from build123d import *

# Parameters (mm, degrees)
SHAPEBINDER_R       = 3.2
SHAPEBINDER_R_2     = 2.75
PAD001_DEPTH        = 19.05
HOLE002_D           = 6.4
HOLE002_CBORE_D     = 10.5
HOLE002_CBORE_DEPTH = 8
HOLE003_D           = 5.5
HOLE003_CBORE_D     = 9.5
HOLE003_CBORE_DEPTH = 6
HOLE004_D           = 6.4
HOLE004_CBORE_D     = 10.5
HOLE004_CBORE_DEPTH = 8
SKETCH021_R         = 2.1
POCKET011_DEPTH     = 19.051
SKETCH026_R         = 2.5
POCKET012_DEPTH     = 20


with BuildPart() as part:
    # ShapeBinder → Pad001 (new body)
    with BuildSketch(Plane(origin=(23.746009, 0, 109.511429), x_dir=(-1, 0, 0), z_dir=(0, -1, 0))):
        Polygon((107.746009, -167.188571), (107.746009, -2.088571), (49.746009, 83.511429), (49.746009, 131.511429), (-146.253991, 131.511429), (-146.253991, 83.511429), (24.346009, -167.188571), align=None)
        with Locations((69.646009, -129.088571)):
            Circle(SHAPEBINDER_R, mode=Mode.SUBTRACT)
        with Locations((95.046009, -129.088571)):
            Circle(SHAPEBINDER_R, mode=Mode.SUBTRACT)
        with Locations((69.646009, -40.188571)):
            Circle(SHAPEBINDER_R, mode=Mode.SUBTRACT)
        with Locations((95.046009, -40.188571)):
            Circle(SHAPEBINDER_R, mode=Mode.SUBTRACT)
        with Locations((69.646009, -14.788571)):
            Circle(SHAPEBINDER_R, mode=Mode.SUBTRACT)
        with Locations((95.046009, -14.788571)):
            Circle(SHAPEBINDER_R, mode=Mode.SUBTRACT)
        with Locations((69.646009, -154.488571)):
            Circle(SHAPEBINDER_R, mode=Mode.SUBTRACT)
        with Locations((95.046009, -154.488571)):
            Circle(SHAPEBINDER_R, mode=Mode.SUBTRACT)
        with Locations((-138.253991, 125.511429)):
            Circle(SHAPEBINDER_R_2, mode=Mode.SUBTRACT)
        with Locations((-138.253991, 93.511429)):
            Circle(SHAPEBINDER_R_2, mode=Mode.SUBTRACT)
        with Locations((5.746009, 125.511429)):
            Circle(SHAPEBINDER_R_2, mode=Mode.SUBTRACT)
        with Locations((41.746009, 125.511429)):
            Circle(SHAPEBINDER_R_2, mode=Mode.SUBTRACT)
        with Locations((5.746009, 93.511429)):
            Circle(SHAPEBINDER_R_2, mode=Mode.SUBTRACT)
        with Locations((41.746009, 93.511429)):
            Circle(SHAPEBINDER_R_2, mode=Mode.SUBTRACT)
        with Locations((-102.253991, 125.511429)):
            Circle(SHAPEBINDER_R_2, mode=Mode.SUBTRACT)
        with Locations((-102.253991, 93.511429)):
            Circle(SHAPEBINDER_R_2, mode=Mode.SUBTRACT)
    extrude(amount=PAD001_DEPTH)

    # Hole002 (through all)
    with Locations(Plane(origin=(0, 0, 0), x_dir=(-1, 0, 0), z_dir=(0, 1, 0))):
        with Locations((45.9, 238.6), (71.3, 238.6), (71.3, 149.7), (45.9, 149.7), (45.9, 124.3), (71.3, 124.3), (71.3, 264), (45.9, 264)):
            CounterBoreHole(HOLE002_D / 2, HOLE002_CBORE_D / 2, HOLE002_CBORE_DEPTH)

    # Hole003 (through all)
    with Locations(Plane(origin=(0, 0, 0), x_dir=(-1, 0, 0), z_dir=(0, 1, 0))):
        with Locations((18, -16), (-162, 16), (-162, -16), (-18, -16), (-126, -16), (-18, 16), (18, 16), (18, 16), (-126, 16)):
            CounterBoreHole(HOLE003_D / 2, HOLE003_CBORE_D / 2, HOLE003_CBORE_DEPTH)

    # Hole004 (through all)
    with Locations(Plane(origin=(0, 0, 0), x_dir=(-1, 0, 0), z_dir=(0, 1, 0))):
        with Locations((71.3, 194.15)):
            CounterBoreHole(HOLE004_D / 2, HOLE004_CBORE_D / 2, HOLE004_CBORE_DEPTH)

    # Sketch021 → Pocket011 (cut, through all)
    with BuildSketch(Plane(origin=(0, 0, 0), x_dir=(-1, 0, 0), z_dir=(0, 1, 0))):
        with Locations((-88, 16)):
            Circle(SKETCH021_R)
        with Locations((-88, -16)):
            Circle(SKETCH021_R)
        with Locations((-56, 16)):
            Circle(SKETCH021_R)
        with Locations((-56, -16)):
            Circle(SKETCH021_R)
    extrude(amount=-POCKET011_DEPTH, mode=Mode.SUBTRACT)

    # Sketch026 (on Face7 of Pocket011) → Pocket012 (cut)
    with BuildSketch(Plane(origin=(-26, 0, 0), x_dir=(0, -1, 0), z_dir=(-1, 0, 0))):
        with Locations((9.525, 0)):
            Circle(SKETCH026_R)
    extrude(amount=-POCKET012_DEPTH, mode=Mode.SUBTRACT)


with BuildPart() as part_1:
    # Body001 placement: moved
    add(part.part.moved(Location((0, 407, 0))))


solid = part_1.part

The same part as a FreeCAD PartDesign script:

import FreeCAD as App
import Part
import Sketcher

doc = App.newDocument("Part")
body = doc.addObject("PartDesign::Body", "Body")

sketch1 = body.newObject("Sketcher::SketchObject", "Sketch")
sketch1.AttachmentSupport = (doc.getObject("XZ_Plane"), [""])
sketch1.MapMode = "FlatFace"
sketch1.addGeometry([
    Part.LineSegment(App.Vector(-84, 276.7, 0), App.Vector(-84, 111.6, 0)),
    Part.LineSegment(App.Vector(-84, 111.6, 0), App.Vector(-26, 26, 0)),
    Part.LineSegment(App.Vector(-26, 26, 0), App.Vector(-26, -22, 0)),
    Part.LineSegment(App.Vector(-26, -22, 0), App.Vector(170, -22, 0)),
    Part.LineSegment(App.Vector(170, -22, 0), App.Vector(170, 26, 0)),
    Part.LineSegment(App.Vector(170, 26, 0), App.Vector(-0.6, 276.7, 0)),
    Part.LineSegment(App.Vector(-0.6, 276.7, 0), App.Vector(-84, 276.7, 0)),
    Part.Circle(App.Vector(-45.9, 264, 0), App.Vector(0, 0, 1), 3.2),
    Part.Circle(App.Vector(-71.3, 264, 0), App.Vector(0, 0, 1), 3.2),
    Part.Circle(App.Vector(-45.9, 238.6, 0), App.Vector(0, 0, 1), 3.2),
    Part.Circle(App.Vector(-71.3, 238.6, 0), App.Vector(0, 0, 1), 3.2),
    Part.Circle(App.Vector(-45.9, 149.7, 0), App.Vector(0, 0, 1), 3.2),
    Part.Circle(App.Vector(-71.3, 149.7, 0), App.Vector(0, 0, 1), 3.2),
    Part.Circle(App.Vector(-45.9, 124.3, 0), App.Vector(0, 0, 1), 3.2),
    Part.Circle(App.Vector(-71.3, 124.3, 0), App.Vector(0, 0, 1), 3.2),
    Part.Circle(App.Vector(162, 16, 0), App.Vector(0, 0, 1), 2.75),
    Part.Circle(App.Vector(162, -16, 0), App.Vector(0, 0, 1), 2.75),
    Part.Circle(App.Vector(126, 16, 0), App.Vector(0, 0, 1), 2.75),
    Part.Circle(App.Vector(126, -16, 0), App.Vector(0, 0, 1), 2.75),
    Part.Circle(App.Vector(18, 16, 0), App.Vector(0, 0, 1), 2.75),
    Part.Circle(App.Vector(18, -16, 0), App.Vector(0, 0, 1), 2.75),
    Part.Circle(App.Vector(-18, 16, 0), App.Vector(0, 0, 1), 2.75),
    Part.Circle(App.Vector(-18, -16, 0), App.Vector(0, 0, 1), 2.75),
], False)
sketch1.addConstraint([
    Sketcher.Constraint("Coincident", 0, 2, 1, 1),
    Sketcher.Constraint("Coincident", 1, 2, 2, 1),
    Sketcher.Constraint("Coincident", 2, 2, 3, 1),
    Sketcher.Constraint("Coincident", 3, 2, 4, 1),
    Sketcher.Constraint("Coincident", 4, 2, 5, 1),
    Sketcher.Constraint("Coincident", 5, 2, 6, 1),
    Sketcher.Constraint("Coincident", 6, 2, 0, 1),
    Sketcher.Constraint("Vertical", 0),
    Sketcher.Constraint("Vertical", 2),
    Sketcher.Constraint("Horizontal", 3),
    Sketcher.Constraint("Vertical", 4),
    Sketcher.Constraint("Horizontal", 6),
    Sketcher.Constraint("Equal", 7, 8),
    Sketcher.Constraint("Equal", 8, 9),
    Sketcher.Constraint("Equal", 9, 10),
    Sketcher.Constraint("Equal", 10, 11),
    Sketcher.Constraint("Equal", 11, 12),
    Sketcher.Constraint("Equal", 12, 13),
    Sketcher.Constraint("Equal", 13, 14),
    Sketcher.Constraint("Equal", 15, 16),
    Sketcher.Constraint("Equal", 16, 17),
    Sketcher.Constraint("Equal", 17, 18),
    Sketcher.Constraint("Equal", 18, 19),
    Sketcher.Constraint("Equal", 19, 20),
    Sketcher.Constraint("Equal", 20, 21),
    Sketcher.Constraint("Equal", 21, 22),
    Sketcher.Constraint("Symmetric", 20, 3, 21, 3, -1, 1),
    Sketcher.Constraint("Symmetric", 19, 3, 22, 3, -1, 1),
    Sketcher.Constraint("Symmetric", 19, 3, 21, 3, -2),
    Sketcher.Constraint("Symmetric", 15, 3, 16, 3, -1),
    Sketcher.Constraint("Symmetric", 17, 3, 18, 3, -1),
    Sketcher.Constraint("Horizontal", 7, 3, 8, 3),
    Sketcher.Constraint("Horizontal", 9, 3, 10, 3),
    Sketcher.Constraint("Horizontal", 11, 3, 12, 3),
    Sketcher.Constraint("Horizontal", 13, 3, 14, 3),
    Sketcher.Constraint("Horizontal", 15, 3, 17, 3),
    Sketcher.Constraint("Horizontal", 17, 3, 19, 3),
    Sketcher.Constraint("Horizontal", 1, 2, 4, 2),
    Sketcher.Constraint("Vertical", 7, 3, 9, 3),
    Sketcher.Constraint("Vertical", 8, 3, 10, 3),
    Sketcher.Constraint("Vertical", 9, 3, 11, 3),
    Sketcher.Constraint("Vertical", 10, 3, 12, 3),
    Sketcher.Constraint("Vertical", 11, 3, 13, 3),
    Sketcher.Constraint("Vertical", 12, 3, 14, 3),
    Sketcher.Constraint("Diameter", 7, 6.4),
    Sketcher.Constraint("Diameter", 15, 5.5),
    Sketcher.Constraint("DistanceX", 3, 1, 3, 2, 196.0),
    Sketcher.Constraint("DistanceY", 2, 2, 2, 1, 48.0),
    Sketcher.Constraint("DistanceX", 6, 2, 6, 1, 83.4),
    Sketcher.Constraint("DistanceY", 0, 2, 0, 1, 165.1),
    Sketcher.Constraint("DistanceY", -1, 1, 7, 3, 264.0),
    Sketcher.Constraint("DistanceX", -1, 1, 15, 3, 162.0),
    Sketcher.Constraint("DistanceY", -1, 1, 15, 3, 16.0),
    Sketcher.Constraint("DistanceX", -1, 1, 17, 3, 126.0),
    Sketcher.Constraint("DistanceX", -1, 1, 19, 3, 18.0),
    Sketcher.Constraint("DistanceX", 0, 2, -1, 1, 84.0),
    Sketcher.Constraint("DistanceX", 1, 2, -1, 1, 26.0),
    Sketcher.Constraint("DistanceY", -1, 1, 1, 2, 26.0),
    Sketcher.Constraint("DistanceY", 11, 3, 5, 2, 127.0),
    Sketcher.Constraint("DistanceX", 7, 3, -1, 1, 45.9),
    Sketcher.Constraint("DistanceX", 8, 3, -1, 1, 71.3),
    Sketcher.Constraint("DistanceY", -1, 1, 9, 3, 238.6),
    Sketcher.Constraint("DistanceY", -1, 1, 11, 3, 149.7),
    Sketcher.Constraint("DistanceY", -1, 1, 13, 3, 124.3),
])
pad1 = body.newObject("PartDesign::Pad", "Pad")
pad1.Profile = sketch1
pad1.Length = 19.05

sketch2 = body.newObject("Sketcher::SketchObject", "Sketch001")
sketch2.AttachmentSupport = (doc.getObject("XZ_Plane"), [""])
sketch2.MapMode = "FlatFace"
sketch2.addGeometry([
    Part.Circle(App.Vector(-45.9, 238.6, 0), App.Vector(0, 0, 1), 3.2),
    Part.Circle(App.Vector(-71.3, 238.6, 0), App.Vector(0, 0, 1), 3.2),
    Part.Circle(App.Vector(-71.3, 149.7, 0), App.Vector(0, 0, 1), 3.2),
    Part.Circle(App.Vector(-45.9, 149.7, 0), App.Vector(0, 0, 1), 3.2),
    Part.Circle(App.Vector(-45.9, 124.3, 0), App.Vector(0, 0, 1), 3.2),
    Part.Circle(App.Vector(-71.3, 124.3, 0), App.Vector(0, 0, 1), 3.2),
    Part.Circle(App.Vector(-71.3, 264, 0), App.Vector(0, 0, 1), 3.2),
    Part.Circle(App.Vector(-45.9, 264, 0), App.Vector(0, 0, 1), 3.2),
], False)
sketch2.addConstraint([
    Sketcher.Constraint("Equal", 0, 1),
    Sketcher.Constraint("Equal", 1, 2),
    Sketcher.Constraint("Equal", 2, 3),
    Sketcher.Constraint("Equal", 3, 4),
    Sketcher.Constraint("Equal", 4, 5),
    Sketcher.Constraint("Equal", 5, 6),
    Sketcher.Constraint("Equal", 6, 7),
    Sketcher.Constraint("Horizontal", 0, 3, 1, 3),
    Sketcher.Constraint("Horizontal", 2, 3, 3, 3),
    Sketcher.Constraint("Horizontal", 4, 3, 5, 3),
    Sketcher.Constraint("Horizontal", 6, 3, 7, 3),
    Sketcher.Constraint("Vertical", 1, 3, 2, 3),
    Sketcher.Constraint("Vertical", 0, 3, 3, 3),
    Sketcher.Constraint("Vertical", 3, 3, 4, 3),
    Sketcher.Constraint("Vertical", 2, 3, 5, 3),
    Sketcher.Constraint("Vertical", 5, 3, 6, 3),
    Sketcher.Constraint("Vertical", 4, 3, 7, 3),
    Sketcher.Constraint("Diameter", 0, 6.4),
    Sketcher.Constraint("DistanceY", -1, 1, 6, 3, 264.0),
    Sketcher.Constraint("DistanceX", 0, 3, -1, 1, 45.9),
    Sketcher.Constraint("DistanceY", -1, 1, 0, 3, 238.6),
    Sketcher.Constraint("DistanceX", 1, 3, -1, 1, 71.3),
    Sketcher.Constraint("DistanceY", -1, 1, 2, 3, 149.7),
    Sketcher.Constraint("DistanceY", -1, 1, 4, 3, 124.3),
])
doc.recompute()
hole = body.newObject("PartDesign::Hole", "Hole")
hole.Profile = sketch2
hole.ThreadType = "None"
hole.Diameter = 6.4
hole.DepthType = "ThroughAll"
hole.HoleCutType = "Counterbore"
hole.HoleCutDiameter = 10.5
hole.HoleCutDepth = 8
hole.Reversed = True

sketch3 = body.newObject("Sketcher::SketchObject", "Sketch002")
sketch3.AttachmentSupport = (doc.getObject("XZ_Plane"), [""])
sketch3.MapMode = "FlatFace"
sketch3.addGeometry([
    Part.Circle(App.Vector(-18, -16, 0), App.Vector(0, 0, 1), 2.75),
    Part.Circle(App.Vector(162, 16, 0), App.Vector(0, 0, 1), 2.75),
    Part.Circle(App.Vector(162, -16, 0), App.Vector(0, 0, 1), 2.75),
    Part.Circle(App.Vector(18, -16, 0), App.Vector(0, 0, 1), 2.75),
    Part.Circle(App.Vector(126, -16, 0), App.Vector(0, 0, 1), 2.75),
    Part.Circle(App.Vector(18, 16, 0), App.Vector(0, 0, 1), 2.75),
    Part.Circle(App.Vector(-18, 16, 0), App.Vector(0, 0, 1), 2.75),
    Part.Circle(App.Vector(-18, 16, 0), App.Vector(0, 0, 1), 2.75),
    Part.Circle(App.Vector(126, 16, 0), App.Vector(0, 0, 1), 2.75),
], False)
sketch3.addConstraint([
    Sketcher.Constraint("Coincident", 7, 3, 6, 3),
    Sketcher.Constraint("Equal", 0, 1),
    Sketcher.Constraint("Equal", 1, 2),
    Sketcher.Constraint("Equal", 2, 3),
    Sketcher.Constraint("Equal", 3, 4),
    Sketcher.Constraint("Equal", 4, 5),
    Sketcher.Constraint("Equal", 5, 6),
    Sketcher.Constraint("Equal", 6, 7),
    Sketcher.Constraint("Equal", 7, 8),
    Sketcher.Constraint("Symmetric", 0, 3, 5, 3, -1, 1),
    Sketcher.Constraint("Symmetric", 3, 3, 6, 3, -1, 1),
    Sketcher.Constraint("Symmetric", 0, 3, 3, 3, -2),
    Sketcher.Constraint("Symmetric", 1, 3, 2, 3, -1),
    Sketcher.Constraint("Symmetric", 4, 3, 8, 3, -1),
    Sketcher.Constraint("Horizontal", 0, 3, 2, 3),
    Sketcher.Constraint("Horizontal", 3, 3, 4, 3),
    Sketcher.Constraint("Diameter", 0, 5.5),
    Sketcher.Constraint("DistanceX", 0, 3, -1, 1, 18.0),
    Sketcher.Constraint("DistanceY", 0, 3, -1, 1, 16.0),
    Sketcher.Constraint("DistanceX", -1, 1, 1, 3, 162.0),
    Sketcher.Constraint("DistanceX", -1, 1, 4, 3, 126.0),
])
doc.recompute()
hole2 = body.newObject("PartDesign::Hole", "Hole001")
hole2.Profile = sketch3
hole2.ThreadType = "None"
hole2.Diameter = 5.5
hole2.DepthType = "ThroughAll"
hole2.HoleCutType = "Counterbore"
hole2.HoleCutDiameter = 9.5
hole2.HoleCutDepth = 6
hole2.Reversed = True

sketch4 = body.newObject("Sketcher::SketchObject", "Sketch003")
sketch4.AttachmentSupport = (doc.getObject("XZ_Plane"), [""])
sketch4.MapMode = "FlatFace"
sketch4.addGeometry(Part.Circle(App.Vector(-71.3, 194.15, 0), App.Vector(0, 0, 1), 3.2), False)
sketch4.addConstraint([
    Sketcher.Constraint("Diameter", 0, 6.4),
    Sketcher.Constraint("DistanceX", 0, 3, -1, 1, 71.3),
    Sketcher.Constraint("DistanceY", -1, 1, 0, 3, 194.15),
])
doc.recompute()
hole3 = body.newObject("PartDesign::Hole", "Hole002")
hole3.Profile = sketch4
hole3.ThreadType = "None"
hole3.Diameter = 6.4
hole3.DepthType = "ThroughAll"
hole3.HoleCutType = "Counterbore"
hole3.HoleCutDiameter = 10.5
hole3.HoleCutDepth = 8
hole3.Reversed = True

sketch5 = body.newObject("Sketcher::SketchObject", "Sketch004")
sketch5.AttachmentSupport = (doc.getObject("XZ_Plane"), [""])
sketch5.MapMode = "FlatFace"
sketch5.addGeometry([
    Part.Circle(App.Vector(88, 16, 0), App.Vector(0, 0, 1), 2.1),
    Part.Circle(App.Vector(88, -16, 0), App.Vector(0, 0, 1), 2.1),
    Part.Circle(App.Vector(56, 16, 0), App.Vector(0, 0, 1), 2.1),
    Part.Circle(App.Vector(56, -16, 0), App.Vector(0, 0, 1), 2.1),
], False)
sketch5.addConstraint([
    Sketcher.Constraint("Equal", 0, 1),
    Sketcher.Constraint("Equal", 1, 2),
    Sketcher.Constraint("Equal", 2, 3),
    Sketcher.Constraint("Symmetric", 0, 3, 1, 3, -1),
    Sketcher.Constraint("Symmetric", 2, 3, 3, 3, -1),
    Sketcher.Constraint("Horizontal", 0, 3, 2, 3),
    Sketcher.Constraint("Diameter", 0, 4.2),
    Sketcher.Constraint("DistanceX", -1, 1, 0, 3, 88.0),
    Sketcher.Constraint("DistanceY", -1, 1, 0, 3, 16.0),
    Sketcher.Constraint("DistanceX", -1, 1, 2, 3, 56.0),
])
pocket1 = body.newObject("PartDesign::Pocket", "Pocket")
pocket1.Profile = sketch5
pocket1.Type = "ThroughAll"
pocket1.Reversed = True

sketch6 = body.newObject("Sketcher::SketchObject", "Sketch005")
sketch6.AttachmentSupport = (doc.getObject("YZ_Plane"), [""])
sketch6.MapMode = "FlatFace"
sketch6.AttachmentOffset = App.Placement(App.Vector(0, 0, -26), App.Rotation())
sketch6.addGeometry(Part.Circle(App.Vector(-9.525, 0, 0), App.Vector(0, 0, 1), 2.5), False)
sketch6.addConstraint([
    Sketcher.Constraint("PointOnObject", 0, 3, -1),
    Sketcher.Constraint("Diameter", 0, 5.0),
    Sketcher.Constraint("DistanceX", 0, 3, -1, 1, 9.525),
])
pocket2 = body.newObject("PartDesign::Pocket", "Pocket001")
pocket2.Profile = sketch6
pocket2.Length = 20
pocket2.Reversed = True
body2 = doc.addObject("PartDesign::Body", "Body001")
doc.recompute()

body.Placement = App.Placement(App.Vector(0, 407, 0), App.Rotation(App.Vector(0, 0, 1), 0))
boolean = body2.newObject("PartDesign::Boolean", "Boolean")
boolean.Type = "Fuse"
boolean.addObjects([body])

doc.recompute()
